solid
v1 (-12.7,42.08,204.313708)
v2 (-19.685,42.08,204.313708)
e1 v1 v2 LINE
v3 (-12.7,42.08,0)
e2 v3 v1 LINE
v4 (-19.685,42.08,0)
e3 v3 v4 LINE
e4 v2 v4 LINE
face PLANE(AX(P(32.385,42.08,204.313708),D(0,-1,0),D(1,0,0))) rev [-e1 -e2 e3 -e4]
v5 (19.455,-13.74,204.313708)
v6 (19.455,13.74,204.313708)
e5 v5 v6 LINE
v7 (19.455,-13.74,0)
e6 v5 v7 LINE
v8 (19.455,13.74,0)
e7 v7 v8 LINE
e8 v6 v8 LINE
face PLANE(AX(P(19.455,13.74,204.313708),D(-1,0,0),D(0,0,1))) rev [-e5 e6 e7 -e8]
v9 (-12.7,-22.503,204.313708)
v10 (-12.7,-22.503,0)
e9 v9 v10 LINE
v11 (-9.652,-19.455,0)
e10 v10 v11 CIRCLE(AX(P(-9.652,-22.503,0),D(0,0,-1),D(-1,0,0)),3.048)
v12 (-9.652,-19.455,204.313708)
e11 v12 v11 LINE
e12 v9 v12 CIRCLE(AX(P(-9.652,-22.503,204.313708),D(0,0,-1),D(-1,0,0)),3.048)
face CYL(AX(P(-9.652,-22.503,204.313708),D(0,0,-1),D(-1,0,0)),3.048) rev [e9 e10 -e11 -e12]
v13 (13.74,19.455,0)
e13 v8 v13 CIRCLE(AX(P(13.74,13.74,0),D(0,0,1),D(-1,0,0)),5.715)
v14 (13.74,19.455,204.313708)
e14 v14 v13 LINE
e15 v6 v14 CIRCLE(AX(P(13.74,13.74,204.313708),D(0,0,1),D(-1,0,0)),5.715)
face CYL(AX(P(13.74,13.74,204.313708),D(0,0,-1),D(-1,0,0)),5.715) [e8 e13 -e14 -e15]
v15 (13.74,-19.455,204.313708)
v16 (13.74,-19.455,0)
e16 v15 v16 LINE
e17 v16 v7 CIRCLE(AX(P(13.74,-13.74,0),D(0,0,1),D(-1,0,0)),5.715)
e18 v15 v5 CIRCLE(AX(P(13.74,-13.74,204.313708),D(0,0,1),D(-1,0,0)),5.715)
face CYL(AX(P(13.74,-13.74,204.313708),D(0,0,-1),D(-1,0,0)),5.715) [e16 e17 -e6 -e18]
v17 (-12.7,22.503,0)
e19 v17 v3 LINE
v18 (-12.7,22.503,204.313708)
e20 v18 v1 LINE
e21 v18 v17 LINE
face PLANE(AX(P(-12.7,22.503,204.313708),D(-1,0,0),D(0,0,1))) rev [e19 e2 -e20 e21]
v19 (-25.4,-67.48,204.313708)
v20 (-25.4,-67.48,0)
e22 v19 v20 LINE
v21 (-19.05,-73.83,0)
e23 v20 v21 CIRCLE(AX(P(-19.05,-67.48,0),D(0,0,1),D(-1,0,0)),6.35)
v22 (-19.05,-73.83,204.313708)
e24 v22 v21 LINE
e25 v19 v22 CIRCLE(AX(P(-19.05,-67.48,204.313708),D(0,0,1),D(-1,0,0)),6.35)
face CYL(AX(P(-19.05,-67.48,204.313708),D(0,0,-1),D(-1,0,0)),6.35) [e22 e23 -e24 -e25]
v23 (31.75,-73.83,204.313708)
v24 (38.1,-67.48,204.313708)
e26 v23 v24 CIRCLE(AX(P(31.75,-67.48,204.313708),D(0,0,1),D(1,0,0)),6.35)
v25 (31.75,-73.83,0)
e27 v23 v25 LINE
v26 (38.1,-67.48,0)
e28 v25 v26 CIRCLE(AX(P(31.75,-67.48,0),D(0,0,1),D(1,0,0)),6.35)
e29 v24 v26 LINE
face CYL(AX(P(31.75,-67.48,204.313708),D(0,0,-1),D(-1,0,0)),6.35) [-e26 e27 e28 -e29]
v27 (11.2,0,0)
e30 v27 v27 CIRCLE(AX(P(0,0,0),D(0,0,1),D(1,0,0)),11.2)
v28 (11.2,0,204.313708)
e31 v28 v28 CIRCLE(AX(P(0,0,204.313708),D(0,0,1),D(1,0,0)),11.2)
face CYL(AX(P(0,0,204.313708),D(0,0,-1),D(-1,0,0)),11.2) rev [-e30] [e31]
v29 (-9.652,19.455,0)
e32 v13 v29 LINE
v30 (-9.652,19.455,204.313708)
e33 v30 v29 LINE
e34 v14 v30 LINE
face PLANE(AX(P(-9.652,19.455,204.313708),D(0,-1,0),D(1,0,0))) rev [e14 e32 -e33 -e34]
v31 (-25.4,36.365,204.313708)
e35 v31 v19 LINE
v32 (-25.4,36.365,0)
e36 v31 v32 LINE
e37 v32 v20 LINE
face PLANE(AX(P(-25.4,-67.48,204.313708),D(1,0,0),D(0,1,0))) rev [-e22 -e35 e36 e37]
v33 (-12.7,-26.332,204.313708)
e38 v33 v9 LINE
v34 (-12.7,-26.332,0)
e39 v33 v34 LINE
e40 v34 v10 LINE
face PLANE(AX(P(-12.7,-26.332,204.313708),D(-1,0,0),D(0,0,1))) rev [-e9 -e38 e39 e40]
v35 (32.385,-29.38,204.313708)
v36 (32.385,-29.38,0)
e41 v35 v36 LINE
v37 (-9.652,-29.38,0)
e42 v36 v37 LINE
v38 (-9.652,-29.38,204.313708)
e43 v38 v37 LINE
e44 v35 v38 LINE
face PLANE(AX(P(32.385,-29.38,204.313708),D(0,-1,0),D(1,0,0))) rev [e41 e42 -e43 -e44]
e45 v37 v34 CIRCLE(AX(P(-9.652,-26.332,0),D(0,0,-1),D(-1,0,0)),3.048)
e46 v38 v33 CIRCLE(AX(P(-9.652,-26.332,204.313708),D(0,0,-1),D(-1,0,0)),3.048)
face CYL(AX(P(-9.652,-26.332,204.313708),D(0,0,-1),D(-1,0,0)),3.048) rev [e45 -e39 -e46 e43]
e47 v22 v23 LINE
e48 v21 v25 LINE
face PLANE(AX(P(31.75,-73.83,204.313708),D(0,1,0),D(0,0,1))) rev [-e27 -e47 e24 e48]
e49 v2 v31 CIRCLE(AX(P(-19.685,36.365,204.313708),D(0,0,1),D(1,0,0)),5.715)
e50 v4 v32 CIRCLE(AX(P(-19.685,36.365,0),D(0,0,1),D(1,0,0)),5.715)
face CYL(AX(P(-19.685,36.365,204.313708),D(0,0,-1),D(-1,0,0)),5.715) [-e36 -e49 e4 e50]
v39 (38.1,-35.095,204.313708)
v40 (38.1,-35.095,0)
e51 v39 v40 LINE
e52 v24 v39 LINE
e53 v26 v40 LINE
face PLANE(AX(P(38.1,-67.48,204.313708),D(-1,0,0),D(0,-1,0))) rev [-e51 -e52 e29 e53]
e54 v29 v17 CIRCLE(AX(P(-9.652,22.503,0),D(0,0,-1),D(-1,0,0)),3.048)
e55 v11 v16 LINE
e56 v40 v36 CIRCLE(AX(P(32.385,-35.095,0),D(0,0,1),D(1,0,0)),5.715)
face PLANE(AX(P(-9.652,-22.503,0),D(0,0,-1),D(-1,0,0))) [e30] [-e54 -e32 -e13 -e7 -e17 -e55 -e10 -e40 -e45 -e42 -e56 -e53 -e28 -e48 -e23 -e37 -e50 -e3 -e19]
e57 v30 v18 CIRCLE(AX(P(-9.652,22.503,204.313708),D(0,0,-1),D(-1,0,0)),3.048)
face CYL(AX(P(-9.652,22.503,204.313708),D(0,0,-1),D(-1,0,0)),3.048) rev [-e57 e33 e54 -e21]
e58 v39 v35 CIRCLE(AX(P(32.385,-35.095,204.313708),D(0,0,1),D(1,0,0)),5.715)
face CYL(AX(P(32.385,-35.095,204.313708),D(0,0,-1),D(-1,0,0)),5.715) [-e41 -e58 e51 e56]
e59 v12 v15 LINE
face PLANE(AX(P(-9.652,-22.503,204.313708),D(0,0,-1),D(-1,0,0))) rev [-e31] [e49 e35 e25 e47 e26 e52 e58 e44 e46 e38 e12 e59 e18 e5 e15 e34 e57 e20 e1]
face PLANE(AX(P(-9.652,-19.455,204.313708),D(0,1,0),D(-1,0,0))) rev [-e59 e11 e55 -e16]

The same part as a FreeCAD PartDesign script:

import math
import FreeCAD as App
import Part
import Sketcher
Q = App.Units.Quantity


def add_polygon(sketch, points):
    """Adds a closed chain of lines whose ends are joined by coincident constraints."""
    first, n = sketch.GeometryCount, len(points)
    for a, b in zip(points, points[1:] + points[:1]):
        sketch.addGeometry(Part.LineSegment(App.Vector(*a, 0), App.Vector(*b, 0)), False)
    for i in range(n):
        sketch.addConstraint(Sketcher.Constraint("Coincident", first + i, 2, first + (i + 1) % n, 1))

doc = App.newDocument("Part")
body = doc.addObject("PartDesign::Body", "Body")

sketch1 = body.newObject("Sketcher::SketchObject", "Sketch")
sketch1.AttachmentSupport = (doc.getObject("XY_Plane"), [""])
sketch1.MapMode = "FlatFace"
sketch1.addGeometry(Part.LineSegment(App.Vector(-25.4, 36.4, 0), App.Vector(-25.4, -67.5, 0)), False)
sketch1.addGeometry(Part.ArcOfCircle(Part.Circle(App.Vector(-19.1, -67.5, 0), App.Vector(0, 0, 1), 6.3), math.radians(180), math.radians(270)), False)
sketch1.addGeometry(Part.LineSegment(App.Vector(-19.1, -73.8, 0), App.Vector(31.8, -73.8, 0)), False)
sketch1.addGeometry(Part.ArcOfCircle(Part.Circle(App.Vector(31.8, -67.5, 0), App.Vector(0, 0, 1), 6.3), math.radians(-90), math.radians(0)), False)
sketch1.addGeometry(Part.LineSegment(App.Vector(38.1, -67.5, 0), App.Vector(38.1, -35.1, 0)), False)
sketch1.addGeometry(Part.ArcOfCircle(Part.Circle(App.Vector(32.4, -35.1, 0), App.Vector(0, 0, 1), 5.7), math.radians(0), math.radians(90)), False)
sketch1.addGeometry(Part.LineSegment(App.Vector(32.4, -29.4, 0), App.Vector(-9.7, -29.4, 0)), False)
sketch1.addGeometry(Part.ArcOfCircle(Part.Circle(App.Vector(-9.7, -26.3, 0), App.Vector(0, 0, 1), 3), math.radians(180), math.radians(270)), False)
sketch1.addGeometry(Part.LineSegment(App.Vector(-12.7, -26.3, 0), App.Vector(-12.7, -22.5, 0)), False)
sketch1.addGeometry(Part.ArcOfCircle(Part.Circle(App.Vector(-9.7, -22.5, 0), App.Vector(0, 0, 1), 3), math.radians(90), math.radians(180)), False)
sketch1.addGeometry(Part.LineSegment(App.Vector(-9.7, -19.5, 0), App.Vector(13.7, -19.5, 0)), False)
sketch1.addGeometry(Part.ArcOfCircle(Part.Circle(App.Vector(13.7, -13.7, 0), App.Vector(0, 0, 1), 5.7), math.radians(-90), math.radians(0)), False)
sketch1.addGeometry(Part.LineSegment(App.Vector(19.5, -13.7, 0), App.Vector(19.5, 13.7, 0)), False)
sketch1.addGeometry(Part.ArcOfCircle(Part.Circle(App.Vector(13.7, 13.7, 0), App.Vector(0, 0, 1), 5.7), math.radians(0), math.radians(90)), False)
sketch1.addGeometry(Part.LineSegment(App.Vector(13.7, 19.5, 0), App.Vector(-9.7, 19.5, 0)), False)
sketch1.addGeometry(Part.ArcOfCircle(Part.Circle(App.Vector(-9.7, 22.5, 0), App.Vector(0, 0, 1), 3), math.radians(180), math.radians(270)), False)
sketch1.addGeometry(Part.LineSegment(App.Vector(-12.7, 22.5, 0), App.Vector(-12.7, 26.3, 0)), False)
sketch1.addGeometry(Part.ArcOfCircle(Part.Circle(App.Vector(-9.7, 26.3, 0), App.Vector(0, 0, 1), 3), math.radians(90), math.radians(180)), False)
sketch1.addGeometry(Part.LineSegment(App.Vector(-9.7, 29.4, 0), App.Vector(32.4, 29.4, 0)), False)
sketch1.addGeometry(Part.ArcOfCircle(Part.Circle(App.Vector(32.4, 35.1, 0), App.Vector(0, 0, 1), 5.7), math.radians(-90), math.radians(0)), False)
sketch1.addGeometry(Part.LineSegment(App.Vector(38.1, 35.1, 0), App.Vector(38.1, 36.4, 0)), False)
sketch1.addGeometry(Part.ArcOfCircle(Part.Circle(App.Vector(32.4, 36.4, 0), App.Vector(0, 0, 1), 5.7), math.radians(0), math.radians(90)), False)
sketch1.addGeometry(Part.LineSegment(App.Vector(32.4, 42.1, 0), App.Vector(-19.7, 42.1, 0)), False)
sketch1.addGeometry(Part.ArcOfCircle(Part.Circle(App.Vector(-19.7, 36.4, 0), App.Vector(0, 0, 1), 5.7), math.radians(90), math.radians(180)), False)
sketch1.addGeometry(Part.Circle(App.Vector(0, 0, 0), App.Vector(0, 0, 1), 11.2), False)
sketch1.addConstraint(Sketcher.Constraint("Tangent", 0, 2, 1, 1))
sketch1.addConstraint(Sketcher.Constraint("Tangent", 1, 2, 2, 1))
sketch1.addConstraint(Sketcher.Constraint("Tangent", 2, 2, 3, 1))
sketch1.addConstraint(Sketcher.Constraint("Tangent", 3, 2, 4, 1))
sketch1.addConstraint(Sketcher.Constraint("Tangent", 4, 2, 5, 1))
sketch1.addConstraint(Sketcher.Constraint("Tangent", 5, 2, 6, 1))
sketch1.addConstraint(Sketcher.Constraint("Tangent", 6, 2, 7, 2))
sketch1.addConstraint(Sketcher.Constraint("Tangent", 7, 1, 8, 1))
sketch1.addConstraint(Sketcher.Constraint("Tangent", 8, 2, 9, 2))
sketch1.addConstraint(Sketcher.Constraint("Tangent", 9, 1, 10, 1))
sketch1.addConstraint(Sketcher.Constraint("Tangent", 10, 2, 11, 1))
sketch1.addConstraint(Sketcher.Constraint("Tangent", 11, 2, 12, 1))
sketch1.addConstraint(Sketcher.Constraint("Tangent", 12, 2, 13, 1))
sketch1.addConstraint(Sketcher.Constraint("Tangent", 13, 2, 14, 1))
sketch1.addConstraint(Sketcher.Constraint("Tangent", 14, 2, 15, 2))
sketch1.addConstraint(Sketcher.Constraint("Tangent", 15, 1, 16, 1))
sketch1.addConstraint(Sketcher.Constraint("Tangent", 16, 2, 17, 2))
sketch1.addConstraint(Sketcher.Constraint("Tangent", 17, 1, 18, 1))
sketch1.addConstraint(Sketcher.Constraint("Tangent", 18, 2, 19, 1))
sketch1.addConstraint(Sketcher.Constraint("Tangent", 19, 2, 20, 1))
sketch1.addConstraint(Sketcher.Constraint("Tangent", 20, 2, 21, 1))
sketch1.addConstraint(Sketcher.Constraint("Tangent", 21, 2, 22, 1))
sketch1.addConstraint(Sketcher.Constraint("Tangent", 22, 2, 23, 1))
sketch1.addConstraint(Sketcher.Constraint("Tangent", 23, 2, 0, 1))
sketch1.addConstraint(Sketcher.Constraint("Vertical", 0))
sketch1.addConstraint(Sketcher.Constraint("Horizontal", 2))
sketch1.addConstraint(Sketcher.Constraint("Vertical", 4))
sketch1.addConstraint(Sketcher.Constraint("Horizontal", 6))
sketch1.addConstraint(Sketcher.Constraint("Vertical", 8))
sketch1.addConstraint(Sketcher.Constraint("Horizontal", 10))
sketch1.addConstraint(Sketcher.Constraint("Vertical", 12))
sketch1.addConstraint(Sketcher.Constraint("Horizontal", 14))
sketch1.addConstraint(Sketcher.Constraint("Vertical", 16))
sketch1.addConstraint(Sketcher.Constraint("Horizontal", 18))
sketch1.addConstraint(Sketcher.Constraint("Vertical", 20))
sketch1.addConstraint(Sketcher.Constraint("Horizontal", 22))
sketch1.addConstraint(Sketcher.Constraint("Coincident", 24, 3, -1, 1))
sketch1.addConstraint(Sketcher.Constraint("Equal", 1, 3))
sketch1.addConstraint(Sketcher.Constraint("Equal", 7, 9))
sketch1.addConstraint(Sketcher.Constraint("Equal", 5, 11))
sketch1.addConstraint(Sketcher.Constraint("Equal", 11, 13))
sketch1.addConstraint(Sketcher.Constraint("Equal", 9, 15))
sketch1.addConstraint(Sketcher.Constraint("Equal", 15, 17))
sketch1.addConstraint(Sketcher.Constraint("Equal", 13, 19))
sketch1.addConstraint(Sketcher.Constraint("Equal", 19, 21))
sketch1.addConstraint(Sketcher.Constraint("Equal", 21, 23))
sketch1.addConstraint(Sketcher.Constraint("Symmetric", 9, 3, 15, 3, -1))
sketch1.addConstraint(Sketcher.Constraint("Symmetric", 5, 3, 19, 3, -1))
sketch1.addConstraint(Sketcher.Constraint("DistanceX", 2, 1, 2, 2, Q("2 in")))
sketch1.addConstraint(Sketcher.Constraint("Radius", 1, Q("0.25 in")))
sketch1.addConstraint(Sketcher.Constraint("Radius", 7, Q("0.12 in")))
sketch1.addConstraint(Sketcher.Constraint("DistanceX", 0, 2, -1, 1, Q("1 in")))
sketch1.addConstraint(Sketcher.Constraint("Radius", 5, Q("0.225 in")))
sketch1.addConstraint(Sketcher.Constraint("DistanceY", 20, 1, 20, 2, Q("0.05 in")))
sketch1.addConstraint(Sketcher.Constraint("DistanceX", 7, 1, -1, 1, Q("0.5 in")))
sketch1.addConstraint(Sketcher.Constraint("DistanceY", 3, 3, 5, 2, Q("1.5 in")))
sketch1.addConstraint(Sketcher.Constraint("Diameter", 24, Q("22.4 mm")))
sketch1.addConstraint(Sketcher.Constraint("DistanceX", 10, 1, 10, 2, Q("23.392 mm")))
sketch1.addConstraint(Sketcher.Constraint("DistanceY", 0, 2, 0, 1, Q("103.845 mm")))
sketch1.addConstraint(Sketcher.Constraint("DistanceY", 8, 1, 8, 2, Q("3.829 mm")))
pad1 = body.newObject("PartDesign::Pad", "Pad")
pad1.Profile = sketch1
pad1.Length = 204.313708

sketch2 = body.newObject("Sketcher::SketchObject", "Sketch001")
sketch2.AttachmentSupport = (doc.getObject("XY_Plane"), [""])
sketch2.MapMode = "FlatFace"
sketch2.AttachmentOffset = App.Placement(App.Vector(0, 0, 204.313708), App.Rotation())
add_polygon(sketch2, [(-13, 42), (-13, 23), (19, 23), (19, -14), (38, -14), (38, 42)])
sketch2.addConstraint(Sketcher.Constraint("Vertical", 0))
sketch2.addConstraint(Sketcher.Constraint("Horizontal", 1))
sketch2.addConstraint(Sketcher.Constraint("Vertical", 2))
sketch2.addConstraint(Sketcher.Constraint("Horizontal", 3))
sketch2.addConstraint(Sketcher.Constraint("Vertical", 4))
sketch2.addConstraint(Sketcher.Constraint("Horizontal", 5))
sketch2.addConstraint(Sketcher.Constraint("DistanceX", 5, 2, 5, 1, Q("2 in")))
sketch2.addConstraint(Sketcher.Constraint("DistanceX", 0, 2, -1, 1, Q("0.5 in")))
sketch2.addConstraint(Sketcher.Constraint("DistanceX", 1, 1, 1, 2, Q("32.155 mm")))
sketch2.addConstraint(Sketcher.Constraint("DistanceY", 0, 2, 0, 1, Q("19.577 mm")))
sketch2.addConstraint(Sketcher.Constraint("DistanceY", 2, 2, 2, 1, Q("36.243 mm")))
sketch2.addConstraint(Sketcher.Constraint("DistanceY", -1, 1, 0, 2, Q("22.503 mm")))
pocket1 = body.newObject("PartDesign::Pocket", "Pocket")
pocket1.Profile = sketch2
pocket1.Length = Q("9.33 in")

doc.recompute()
